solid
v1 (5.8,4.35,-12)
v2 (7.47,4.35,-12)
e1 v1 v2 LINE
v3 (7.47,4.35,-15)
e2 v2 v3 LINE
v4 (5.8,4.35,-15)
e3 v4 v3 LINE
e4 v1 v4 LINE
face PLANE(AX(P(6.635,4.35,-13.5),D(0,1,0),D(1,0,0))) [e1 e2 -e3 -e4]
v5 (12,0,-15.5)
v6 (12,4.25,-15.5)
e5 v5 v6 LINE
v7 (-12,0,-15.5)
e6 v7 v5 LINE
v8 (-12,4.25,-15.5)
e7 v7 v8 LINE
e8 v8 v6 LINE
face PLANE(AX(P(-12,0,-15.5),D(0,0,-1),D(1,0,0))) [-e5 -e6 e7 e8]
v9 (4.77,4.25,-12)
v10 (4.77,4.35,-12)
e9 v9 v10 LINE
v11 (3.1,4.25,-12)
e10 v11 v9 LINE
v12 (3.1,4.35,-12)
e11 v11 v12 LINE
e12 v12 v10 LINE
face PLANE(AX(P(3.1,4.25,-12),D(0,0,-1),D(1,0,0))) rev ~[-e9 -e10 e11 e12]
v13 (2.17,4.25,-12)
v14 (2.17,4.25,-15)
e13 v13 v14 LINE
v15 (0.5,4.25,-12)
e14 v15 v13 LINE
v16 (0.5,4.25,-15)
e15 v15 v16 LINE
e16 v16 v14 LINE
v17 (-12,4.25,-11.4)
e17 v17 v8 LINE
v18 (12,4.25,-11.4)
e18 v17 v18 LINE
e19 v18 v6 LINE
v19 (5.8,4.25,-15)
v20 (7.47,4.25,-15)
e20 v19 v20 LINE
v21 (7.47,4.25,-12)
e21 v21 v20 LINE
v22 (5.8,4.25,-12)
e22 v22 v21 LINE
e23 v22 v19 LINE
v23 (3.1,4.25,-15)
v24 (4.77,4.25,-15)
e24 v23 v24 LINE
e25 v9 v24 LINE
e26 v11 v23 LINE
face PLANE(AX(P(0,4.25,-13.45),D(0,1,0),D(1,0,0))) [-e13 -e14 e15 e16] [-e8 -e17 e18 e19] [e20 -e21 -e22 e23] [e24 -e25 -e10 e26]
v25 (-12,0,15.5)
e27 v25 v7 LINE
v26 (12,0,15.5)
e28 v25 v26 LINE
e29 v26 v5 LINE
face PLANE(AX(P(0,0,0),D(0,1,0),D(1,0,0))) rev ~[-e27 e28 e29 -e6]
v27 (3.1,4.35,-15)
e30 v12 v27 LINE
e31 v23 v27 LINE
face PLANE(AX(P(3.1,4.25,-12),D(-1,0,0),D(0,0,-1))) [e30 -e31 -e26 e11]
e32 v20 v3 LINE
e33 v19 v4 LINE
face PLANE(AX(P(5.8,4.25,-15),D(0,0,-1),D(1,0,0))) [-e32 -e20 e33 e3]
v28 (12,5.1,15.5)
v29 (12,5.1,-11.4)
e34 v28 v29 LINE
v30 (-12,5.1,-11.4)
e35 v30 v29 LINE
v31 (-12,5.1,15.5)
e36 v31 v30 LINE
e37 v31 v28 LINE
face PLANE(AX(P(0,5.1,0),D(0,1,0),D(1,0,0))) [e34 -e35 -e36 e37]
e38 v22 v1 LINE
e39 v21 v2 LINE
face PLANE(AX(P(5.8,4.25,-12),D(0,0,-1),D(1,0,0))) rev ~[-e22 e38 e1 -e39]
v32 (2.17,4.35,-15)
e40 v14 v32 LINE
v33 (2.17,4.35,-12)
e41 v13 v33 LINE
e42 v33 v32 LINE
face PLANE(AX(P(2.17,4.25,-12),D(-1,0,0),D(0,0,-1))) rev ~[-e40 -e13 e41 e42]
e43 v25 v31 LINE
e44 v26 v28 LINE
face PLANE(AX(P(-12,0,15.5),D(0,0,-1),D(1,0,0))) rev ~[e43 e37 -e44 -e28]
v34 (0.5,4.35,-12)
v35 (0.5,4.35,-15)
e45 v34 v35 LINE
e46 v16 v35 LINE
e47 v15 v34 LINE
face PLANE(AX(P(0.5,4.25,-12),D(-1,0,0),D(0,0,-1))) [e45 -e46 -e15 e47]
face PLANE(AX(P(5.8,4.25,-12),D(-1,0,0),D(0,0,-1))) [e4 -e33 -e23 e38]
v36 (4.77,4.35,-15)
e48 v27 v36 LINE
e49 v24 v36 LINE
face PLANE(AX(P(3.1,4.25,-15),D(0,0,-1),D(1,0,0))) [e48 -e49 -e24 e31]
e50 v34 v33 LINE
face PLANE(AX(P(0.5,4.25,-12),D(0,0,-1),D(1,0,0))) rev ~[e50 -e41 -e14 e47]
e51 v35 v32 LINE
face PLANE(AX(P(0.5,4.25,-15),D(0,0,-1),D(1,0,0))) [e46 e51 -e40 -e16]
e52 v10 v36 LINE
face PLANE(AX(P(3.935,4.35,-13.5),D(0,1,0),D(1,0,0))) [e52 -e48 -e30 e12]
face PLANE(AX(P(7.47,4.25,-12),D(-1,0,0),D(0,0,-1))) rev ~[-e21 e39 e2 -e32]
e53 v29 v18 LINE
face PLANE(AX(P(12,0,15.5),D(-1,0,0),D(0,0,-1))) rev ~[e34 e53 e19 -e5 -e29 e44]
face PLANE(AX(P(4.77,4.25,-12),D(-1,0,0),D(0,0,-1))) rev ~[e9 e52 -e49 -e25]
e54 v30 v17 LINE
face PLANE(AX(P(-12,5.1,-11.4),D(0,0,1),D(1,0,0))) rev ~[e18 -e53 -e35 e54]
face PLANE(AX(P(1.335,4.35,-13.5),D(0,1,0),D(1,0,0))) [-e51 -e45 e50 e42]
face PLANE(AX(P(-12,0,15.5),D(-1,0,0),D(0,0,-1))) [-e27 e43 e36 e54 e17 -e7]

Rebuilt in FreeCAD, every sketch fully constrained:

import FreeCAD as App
import Part
import Sketcher
Q = App.Units.Quantity

doc = App.newDocument("Part")
body = doc.addObject("PartDesign::Body", "Body")

sketch1 = body.newObject("Sketcher::SketchObject", "Sketch")
sketch1.AttachmentSupport = (doc.getObject("XZ_Plane"), [""])
sketch1.MapMode = "FlatFace"
sketch1.addGeometry([
    Part.LineSegment(App.Vector(-12, -16, 0), App.Vector(-12, 16, 0)),
    Part.LineSegment(App.Vector(-12, 16, 0), App.Vector(12, 16, 0)),
    Part.LineSegment(App.Vector(12, 16, 0), App.Vector(12, -16, 0)),
    Part.LineSegment(App.Vector(12, -16, 0), App.Vector(-12, -16, 0)),
], False)
sketch1.addConstraint([
    Sketcher.Constraint("Coincident", 0, 2, 1, 1),
    Sketcher.Constraint("Coincident", 1, 2, 2, 1),
    Sketcher.Constraint("Coincident", 2, 2, 3, 1),
    Sketcher.Constraint("Coincident", 3, 2, 0, 1),
    Sketcher.Constraint("Vertical", 0),
    Sketcher.Constraint("Horizontal", 1),
    Sketcher.Constraint("Vertical", 2),
    Sketcher.Constraint("Horizontal", 3),
    Sketcher.Constraint("Symmetric", 0, 2, 2, 2, -1, 1),
    Sketcher.Constraint("DistanceX", 1, 1, 1, 2, Q("24 mm")),
    Sketcher.Constraint("DistanceY", 0, 1, 0, 2, Q("31 mm")),
])
pad1 = body.newObject("PartDesign::Pad", "Pad")
pad1.Profile = sketch1
pad1.Length = 5.1
pad1.Reversed = True

sketch2 = body.newObject("Sketcher::SketchObject", "Sketch001")
sketch2.AttachmentSupport = (doc.getObject("XZ_Plane"), [""])
sketch2.MapMode = "FlatFace"
sketch2.AttachmentOffset = App.Placement(App.Vector(0, 0, -5.1), App.Rotation())
sketch2.addGeometry([
    Part.LineSegment(App.Vector(-12, -15.5, 0), App.Vector(-12, -11.4, 0)),
    Part.LineSegment(App.Vector(-12, -11.4, 0), App.Vector(12, -11.4, 0)),
    Part.LineSegment(App.Vector(12, -11.4, 0), App.Vector(12, -15.5, 0)),
    Part.LineSegment(App.Vector(12, -15.5, 0), App.Vector(-12, -15.5, 0)),
], False)
sketch2.addConstraint([
    Sketcher.Constraint("Coincident", 0, 2, 1, 1),
    Sketcher.Constraint("Coincident", 1, 2, 2, 1),
    Sketcher.Constraint("Coincident", 2, 2, 3, 1),
    Sketcher.Constraint("Coincident", 3, 2, 0, 1),
    Sketcher.Constraint("Vertical", 0),
    Sketcher.Constraint("Horizontal", 1),
    Sketcher.Constraint("Vertical", 2),
    Sketcher.Constraint("Horizontal", 3),
    Sketcher.Constraint("DistanceX", 1, 1, 1, 2, Q("24 mm")),
    Sketcher.Constraint("DistanceY", 0, 1, 0, 2, Q("4.1 mm")),
    Sketcher.Constraint("DistanceX", 0, 2, -1, 1, Q("12 mm")),
    Sketcher.Constraint("DistanceY", 0, 2, -1, 1, Q("11.4 mm")),
])
pocket1 = body.newObject("PartDesign::Pocket", "Pocket")
pocket1.Profile = sketch2
pocket1.Length = 0.85
pocket1.Reversed = True

sketch3 = body.newObject("Sketcher::SketchObject", "Sketch002")
sketch3.AttachmentSupport = (doc.getObject("XZ_Plane"), [""])
sketch3.MapMode = "FlatFace"
sketch3.AttachmentOffset = App.Placement(App.Vector(0, 0, -4.25), App.Rotation())
sketch3.addGeometry([
    Part.LineSegment(App.Vector(0.5, -15, 0), App.Vector(0.5, -12, 0)),
    Part.LineSegment(App.Vector(0.5, -12, 0), App.Vector(2.2, -12, 0)),
    Part.LineSegment(App.Vector(2.2, -12, 0), App.Vector(2.2, -15, 0)),
    Part.LineSegment(App.Vector(2.2, -15, 0), App.Vector(0.5, -15, 0)),
    Part.LineSegment(App.Vector(3.1, -15, 0), App.Vector(3.1, -12, 0)),
    Part.LineSegment(App.Vector(3.1, -12, 0), App.Vector(4.8, -12, 0)),
    Part.LineSegment(App.Vector(4.8, -12, 0), App.Vector(4.8, -15, 0)),
    Part.LineSegment(App.Vector(4.8, -15, 0), App.Vector(3.1, -15, 0)),
    Part.LineSegment(App.Vector(5.8, -15, 0), App.Vector(5.8, -12, 0)),
    Part.LineSegment(App.Vector(5.8, -12, 0), App.Vector(7.5, -12, 0)),
    Part.LineSegment(App.Vector(7.5, -12, 0), App.Vector(7.5, -15, 0)),
    Part.LineSegment(App.Vector(7.5, -15, 0), App.Vector(5.8, -15, 0)),
], False)
sketch3.addConstraint([
    Sketcher.Constraint("Coincident", 0, 2, 1, 1),
    Sketcher.Constraint("Coincident", 1, 2, 2, 1),
    Sketcher.Constraint("Coincident", 2, 2, 3, 1),
    Sketcher.Constraint("Coincident", 3, 2, 0, 1),
    Sketcher.Constraint("Coincident", 4, 2, 5, 1),
    Sketcher.Constraint("Coincident", 5, 2, 6, 1),
    Sketcher.Constraint("Coincident", 6, 2, 7, 1),
    Sketcher.Constraint("Coincident", 7, 2, 4, 1),
    Sketcher.Constraint("Coincident", 8, 2, 9, 1),
    Sketcher.Constraint("Coincident", 9, 2, 10, 1),
    Sketcher.Constraint("Coincident", 10, 2, 11, 1),
    Sketcher.Constraint("Coincident", 11, 2, 8, 1),
    Sketcher.Constraint("Vertical", 0),
    Sketcher.Constraint("Horizontal", 1),
    Sketcher.Constraint("Vertical", 2),
    Sketcher.Constraint("Horizontal", 3),
    Sketcher.Constraint("Vertical", 4),
    Sketcher.Constraint("Horizontal", 5),
    Sketcher.Constraint("Vertical", 6),
    Sketcher.Constraint("Horizontal", 7),
    Sketcher.Constraint("Vertical", 8),
    Sketcher.Constraint("Horizontal", 9),
    Sketcher.Constraint("Vertical", 10),
    Sketcher.Constraint("Horizontal", 11),
    Sketcher.Constraint("Horizontal", 1, 2, 4, 2),
    Sketcher.Constraint("Horizontal", 3, 2, 6, 2),
    Sketcher.Constraint("Horizontal", 5, 2, 8, 2),
    Sketcher.Constraint("Horizontal", 7, 2, 10, 2),
    Sketcher.Constraint("Equal", 3, 5),
    Sketcher.Constraint("Equal", 7, 9),
    Sketcher.Constraint("DistanceY", 0, 1, 0, 2, Q("3 mm")),
    Sketcher.Constraint("DistanceY", 0, 2, -1, 1, Q("12 mm")),
    Sketcher.Constraint("DistanceX", 1, 1, 1, 2, Q("1.67 mm")),
    Sketcher.Constraint("DistanceX", -1, 1, 0, 2, Q("0.5 mm")),
    Sketcher.Constraint("DistanceX", -1, 1, 4, 2, Q("3.1 mm")),
    Sketcher.Constraint("DistanceX", -1, 1, 8, 2, Q("5.8 mm")),
])
pad2 = body.newObject("PartDesign::Pad", "Pad001")
pad2.Profile = sketch3
pad2.Length = 0.1
pad2.Reversed = True

doc.recompute()
